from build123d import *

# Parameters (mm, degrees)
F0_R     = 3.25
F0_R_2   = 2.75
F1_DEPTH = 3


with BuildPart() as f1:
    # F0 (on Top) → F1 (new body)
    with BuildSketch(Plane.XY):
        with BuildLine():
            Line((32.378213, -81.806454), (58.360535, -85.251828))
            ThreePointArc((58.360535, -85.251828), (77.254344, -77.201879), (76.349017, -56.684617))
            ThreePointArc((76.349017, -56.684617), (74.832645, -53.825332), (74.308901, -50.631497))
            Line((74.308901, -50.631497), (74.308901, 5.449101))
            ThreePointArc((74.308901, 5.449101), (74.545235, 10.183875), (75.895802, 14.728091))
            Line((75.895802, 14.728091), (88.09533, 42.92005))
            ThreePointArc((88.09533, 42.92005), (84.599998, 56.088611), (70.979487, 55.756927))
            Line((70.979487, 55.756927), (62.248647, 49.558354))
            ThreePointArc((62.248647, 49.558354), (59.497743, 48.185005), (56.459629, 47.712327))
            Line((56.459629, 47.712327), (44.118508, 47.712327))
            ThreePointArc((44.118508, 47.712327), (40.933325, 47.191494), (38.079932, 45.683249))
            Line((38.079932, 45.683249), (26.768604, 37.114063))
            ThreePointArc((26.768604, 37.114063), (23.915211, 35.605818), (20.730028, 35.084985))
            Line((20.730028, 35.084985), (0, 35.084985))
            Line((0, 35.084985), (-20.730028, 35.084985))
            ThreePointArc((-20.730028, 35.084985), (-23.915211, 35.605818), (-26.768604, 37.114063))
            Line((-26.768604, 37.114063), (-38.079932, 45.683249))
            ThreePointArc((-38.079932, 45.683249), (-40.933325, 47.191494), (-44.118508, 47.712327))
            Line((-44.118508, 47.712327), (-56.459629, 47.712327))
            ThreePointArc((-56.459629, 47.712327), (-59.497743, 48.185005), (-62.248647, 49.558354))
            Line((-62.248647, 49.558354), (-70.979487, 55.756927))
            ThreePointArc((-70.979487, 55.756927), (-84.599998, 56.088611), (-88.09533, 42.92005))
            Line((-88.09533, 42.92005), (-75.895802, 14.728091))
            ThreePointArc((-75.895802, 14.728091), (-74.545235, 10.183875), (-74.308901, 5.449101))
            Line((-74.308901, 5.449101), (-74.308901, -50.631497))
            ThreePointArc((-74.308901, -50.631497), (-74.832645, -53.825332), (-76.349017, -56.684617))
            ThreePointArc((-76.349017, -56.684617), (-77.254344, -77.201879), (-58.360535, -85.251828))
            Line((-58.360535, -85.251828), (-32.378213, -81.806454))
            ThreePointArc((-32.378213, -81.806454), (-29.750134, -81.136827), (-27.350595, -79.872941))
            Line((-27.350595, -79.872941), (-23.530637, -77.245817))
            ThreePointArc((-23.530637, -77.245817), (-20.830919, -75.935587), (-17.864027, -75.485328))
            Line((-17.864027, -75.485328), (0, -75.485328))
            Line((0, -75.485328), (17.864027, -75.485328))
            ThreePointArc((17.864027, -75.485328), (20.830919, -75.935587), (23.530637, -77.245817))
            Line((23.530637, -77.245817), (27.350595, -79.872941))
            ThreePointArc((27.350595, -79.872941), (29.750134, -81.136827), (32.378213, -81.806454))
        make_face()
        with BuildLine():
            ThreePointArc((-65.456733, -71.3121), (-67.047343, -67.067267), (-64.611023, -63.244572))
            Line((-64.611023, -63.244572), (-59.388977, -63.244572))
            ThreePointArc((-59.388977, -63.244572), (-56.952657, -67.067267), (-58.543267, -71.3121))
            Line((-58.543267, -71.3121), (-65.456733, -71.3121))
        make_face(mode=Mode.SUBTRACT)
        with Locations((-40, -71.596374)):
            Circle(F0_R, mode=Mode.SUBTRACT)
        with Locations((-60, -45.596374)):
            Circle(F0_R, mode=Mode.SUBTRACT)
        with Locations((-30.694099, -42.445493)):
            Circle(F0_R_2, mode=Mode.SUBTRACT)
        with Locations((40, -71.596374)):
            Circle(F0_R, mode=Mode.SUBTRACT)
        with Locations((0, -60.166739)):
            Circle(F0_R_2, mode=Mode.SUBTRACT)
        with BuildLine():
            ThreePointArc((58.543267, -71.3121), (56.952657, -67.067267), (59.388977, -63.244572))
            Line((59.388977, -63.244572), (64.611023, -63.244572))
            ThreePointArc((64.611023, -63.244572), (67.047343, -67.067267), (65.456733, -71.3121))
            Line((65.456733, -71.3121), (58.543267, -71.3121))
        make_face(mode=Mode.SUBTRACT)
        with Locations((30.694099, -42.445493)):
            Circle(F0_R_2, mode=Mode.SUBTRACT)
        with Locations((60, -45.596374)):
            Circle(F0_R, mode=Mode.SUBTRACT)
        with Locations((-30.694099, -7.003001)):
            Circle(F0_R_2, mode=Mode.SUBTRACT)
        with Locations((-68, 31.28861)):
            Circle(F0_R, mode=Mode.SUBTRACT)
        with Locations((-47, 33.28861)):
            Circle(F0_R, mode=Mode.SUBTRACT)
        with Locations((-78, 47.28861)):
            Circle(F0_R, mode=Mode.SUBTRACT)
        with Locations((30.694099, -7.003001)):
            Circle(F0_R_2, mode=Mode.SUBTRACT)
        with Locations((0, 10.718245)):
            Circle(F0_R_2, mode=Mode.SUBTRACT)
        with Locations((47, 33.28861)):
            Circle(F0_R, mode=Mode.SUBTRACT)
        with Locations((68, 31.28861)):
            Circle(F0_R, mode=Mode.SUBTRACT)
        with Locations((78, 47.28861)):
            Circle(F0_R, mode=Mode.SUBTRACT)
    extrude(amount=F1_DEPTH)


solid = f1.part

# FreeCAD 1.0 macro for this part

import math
import FreeCAD as App
import Part
import Sketcher

doc = App.newDocument("Part")
body = doc.addObject("PartDesign::Body", "Body")

sketch1 = body.newObject("Sketcher::SketchObject", "Sketch")
sketch1.AttachmentSupport = (doc.getObject("XY_Plane"), [""])
sketch1.MapMode = "FlatFace"
sketch1.addGeometry(Part.LineSegment(App.Vector(32.378213, -81.806454, 0), App.Vector(58.360535, -85.251828, 0)), False)
sketch1.addGeometry(Part.ArcOfCircle(Part.Circle(App.Vector(61.999999, -67.596374, 0), App.Vector(0, 0, 1), 18.026668), math.radians(-101.647699), math.radians(37.251292)), False)
sketch1.addGeometry(Part.ArcOfCircle(Part.Circle(App.Vector(84.308899, -50.631499, 0), App.Vector(0, 0, 1), 9.999998), math.radians(179.99999), math.radians(217.251291)), False)
sketch1.addGeometry(Part.LineSegment(App.Vector(74.308901, -50.631497, 0), App.Vector(74.308901, 5.449101, 0)), False)
sketch1.addGeometry(Part.ArcOfCircle(Part.Circle(App.Vector(94.141935, 6.83243, 0), App.Vector(0, 0, 1), 19.881218), math.radians(156.600385), math.radians(183.989846)), False)
sketch1.addGeometry(Part.LineSegment(App.Vector(75.895802, 14.728091, 0), App.Vector(88.09533, 42.92005, 0)), False)
sketch1.addGeometry(Part.ArcOfCircle(Part.Circle(App.Vector(78, 47.288609, 0), App.Vector(0, 0, 1), 11), math.radians(-23.399618), math.radians(129.659845)), False)
sketch1.addGeometry(Part.LineSegment(App.Vector(70.979487, 55.756927, 0), App.Vector(62.248647, 49.558354, 0)), False)
sketch1.addGeometry(Part.ArcOfCircle(Part.Circle(App.Vector(56.459629, 57.712329, 0), App.Vector(0, 0, 1), 10.000002), math.radians(-90), math.radians(-54.626668)), False)
sketch1.addGeometry(Part.LineSegment(App.Vector(56.459629, 47.712327, 0), App.Vector(44.118508, 47.712327, 0)), False)
sketch1.addGeometry(Part.ArcOfCircle(Part.Circle(App.Vector(44.118508, 37.712326, 0), App.Vector(0, 0, 1), 10.000001), math.radians(90.000003), math.radians(127.14668)), False)
sketch1.addGeometry(Part.LineSegment(App.Vector(38.079932, 45.683249, 0), App.Vector(26.768604, 37.114063, 0)), False)
sketch1.addGeometry(Part.ArcOfCircle(Part.Circle(App.Vector(20.730027, 45.084986, 0), App.Vector(0, 0, 1), 10.000001), math.radians(-89.999997), math.radians(-52.85332)), False)
sketch1.addGeometry(Part.LineSegment(App.Vector(20.730028, 35.084985, 0), App.Vector(-20.730028, 35.084985, 0)), False)
sketch1.addGeometry(Part.ArcOfCircle(Part.Circle(App.Vector(-20.730027, 45.084986, 0), App.Vector(0, 0, 1), 10.000001), math.radians(-127.14668), math.radians(-90.000003)), False)
sketch1.addGeometry(Part.LineSegment(App.Vector(-26.768604, 37.114063, 0), App.Vector(-38.079932, 45.683249, 0)), False)
sketch1.addGeometry(Part.ArcOfCircle(Part.Circle(App.Vector(-44.118508, 37.712326, 0), App.Vector(0, 0, 1), 10.000001), math.radians(52.85332), math.radians(89.999997)), False)
sketch1.addGeometry(Part.LineSegment(App.Vector(-44.118508, 47.712327, 0), App.Vector(-56.459629, 47.712327, 0)), False)
sketch1.addGeometry(Part.ArcOfCircle(Part.Circle(App.Vector(-56.459629, 57.712329, 0), App.Vector(0, 0, 1), 10.000002), math.radians(-125.373332), math.radians(-90)), False)
sketch1.addGeometry(Part.LineSegment(App.Vector(-62.248647, 49.558354, 0), App.Vector(-70.979487, 55.756927, 0)), False)
sketch1.addGeometry(Part.ArcOfCircle(Part.Circle(App.Vector(-78, 47.288609, 0), App.Vector(0, 0, 1), 11), math.radians(50.340155), math.radians(203.399618)), False)
sketch1.addGeometry(Part.LineSegment(App.Vector(-88.09533, 42.92005, 0), App.Vector(-75.895802, 14.728091, 0)), False)
sketch1.addGeometry(Part.ArcOfCircle(Part.Circle(App.Vector(-94.141935, 6.83243, 0), App.Vector(0, 0, 1), 19.881218), math.radians(-3.989846), math.radians(23.399615)), False)
sketch1.addGeometry(Part.LineSegment(App.Vector(-74.308901, 5.449101, 0), App.Vector(-74.308901, -50.631497, 0)), False)
sketch1.addGeometry(Part.ArcOfCircle(Part.Circle(App.Vector(-84.308899, -50.631499, 0), App.Vector(0, 0, 1), 9.999998), math.radians(-37.251291), math.radians(0.00001)), False)
sketch1.addGeometry(Part.ArcOfCircle(Part.Circle(App.Vector(-61.999999, -67.596374, 0), App.Vector(0, 0, 1), 18.026668), math.radians(142.748708), math.radians(281.647699)), False)
sketch1.addGeometry(Part.LineSegment(App.Vector(-58.360535, -85.251828, 0), App.Vector(-32.378213, -81.806454, 0)), False)
sketch1.addGeometry(Part.ArcOfCircle(Part.Circle(App.Vector(-33.896799, -70.35446, 0), App.Vector(0, 0, 1), 11.552241), math.radians(-82.446389), math.radians(-55.482287)), False)
sketch1.addGeometry(Part.LineSegment(App.Vector(-27.350595, -79.872941, 0), App.Vector(-23.530637, -77.245817, 0)), False)
sketch1.addGeometry(Part.ArcOfCircle(Part.Circle(App.Vector(-17.864027, -85.485332, 0), App.Vector(0, 0, 1), 10.000004), math.radians(90.000003), math.radians(124.5177)), False)
sketch1.addGeometry(Part.LineSegment(App.Vector(-17.864027, -75.485328, 0), App.Vector(17.864027, -75.485328, 0)), False)
sketch1.addGeometry(Part.ArcOfCircle(Part.Circle(App.Vector(17.864027, -85.485332, 0), App.Vector(0, 0, 1), 10.000004), math.radians(55.4823), math.radians(89.999997)), False)
sketch1.addGeometry(Part.LineSegment(App.Vector(23.530637, -77.245817, 0), App.Vector(27.350595, -79.872941, 0)), False)
sketch1.addGeometry(Part.ArcOfCircle(Part.Circle(App.Vector(33.896799, -70.35446, 0), App.Vector(0, 0, 1), 11.552241), math.radians(-124.517713), math.radians(-97.553611)), False)
sketch1.addGeometry(Part.LineSegment(App.Vector(-58.543267, -71.3121, 0), App.Vector(-65.456733, -71.3121, 0)), False)
sketch1.addGeometry(Part.ArcOfCircle(Part.Circle(App.Vector(-62.000001, -67.596374, 0), App.Vector(0, 0, 1), 5.074999), math.radians(120.963185), math.radians(227.068023)), False)
sketch1.addGeometry(Part.LineSegment(App.Vector(-64.611023, -63.244572, 0), App.Vector(-59.388977, -63.244572, 0)), False)
sketch1.addGeometry(Part.ArcOfCircle(Part.Circle(App.Vector(-61.999999, -67.596374, 0), App.Vector(0, 0, 1), 5.074999), math.radians(-47.068023), math.radians(59.036815)), False)
sketch1.addGeometry(Part.Circle(App.Vector(-60, -45.596374, 0), App.Vector(0, 0, 1), 3.25), False)
sketch1.addGeometry(Part.Circle(App.Vector(-40, -71.596374, 0), App.Vector(0, 0, 1), 3.25), False)
sketch1.addGeometry(Part.Circle(App.Vector(-30.694099, -42.445493, 0), App.Vector(0, 0, 1), 2.75), False)
sketch1.addGeometry(Part.Circle(App.Vector(0, -60.166739, 0), App.Vector(0, 0, 1), 2.75), False)
sketch1.addGeometry(Part.Circle(App.Vector(40, -71.596374, 0), App.Vector(0, 0, 1), 3.25), False)
sketch1.addGeometry(Part.LineSegment(App.Vector(65.456733, -71.3121, 0), App.Vector(58.543267, -71.3121, 0)), False)
sketch1.addGeometry(Part.ArcOfCircle(Part.Circle(App.Vector(61.999999, -67.596374, 0), App.Vector(0, 0, 1), 5.074999), math.radians(120.963185), math.radians(227.068023)), False)
sketch1.addGeometry(Part.LineSegment(App.Vector(59.388977, -63.244572, 0), App.Vector(64.611023, -63.244572, 0)), False)
sketch1.addGeometry(Part.ArcOfCircle(Part.Circle(App.Vector(62.000001, -67.596374, 0), App.Vector(0, 0, 1), 5.074999), math.radians(-47.068023), math.radians(59.036815)), False)
sketch1.addGeometry(Part.Circle(App.Vector(60, -45.596374, 0), App.Vector(0, 0, 1), 3.25), False)
sketch1.addGeometry(Part.Circle(App.Vector(30.694099, -42.445493, 0), App.Vector(0, 0, 1), 2.75), False)
sketch1.addGeometry(Part.Circle(App.Vector(-30.694099, -7.003001, 0), App.Vector(0, 0, 1), 2.75), False)
sketch1.addGeometry(Part.Circle(App.Vector(-68, 31.28861, 0), App.Vector(0, 0, 1), 3.25), False)
sketch1.addGeometry(Part.Circle(App.Vector(-47, 33.28861, 0), App.Vector(0, 0, 1), 3.25), False)
sketch1.addGeometry(Part.Circle(App.Vector(-78, 47.28861, 0), App.Vector(0, 0, 1), 3.25), False)
sketch1.addGeometry(Part.Circle(App.Vector(30.694099, -7.003001, 0), App.Vector(0, 0, 1), 2.75), False)
sketch1.addGeometry(Part.Circle(App.Vector(0, 10.718245, 0), App.Vector(0, 0, 1), 2.75), False)
sketch1.addGeometry(Part.Circle(App.Vector(47, 33.28861, 0), App.Vector(0, 0, 1), 3.25), False)
sketch1.addGeometry(Part.Circle(App.Vector(68, 31.28861, 0), App.Vector(0, 0, 1), 3.25), False)
sketch1.addGeometry(Part.Circle(App.Vector(78, 47.28861, 0), App.Vector(0, 0, 1), 3.25), False)
sketch1.addConstraint(Sketcher.Constraint("Coincident", 0, 2, 1, 1))
sketch1.addConstraint(Sketcher.Constraint("Tangent", 1, 2, 2, 2))
sketch1.addConstraint(Sketcher.Constraint("Tangent", 2, 1, 3, 1))
sketch1.addConstraint(Sketcher.Constraint("Coincident", 3, 2, 4, 2))
sketch1.addConstraint(Sketcher.Constraint("Tangent", 4, 1, 5, 1))
sketch1.addConstraint(Sketcher.Constraint("Tangent", 5, 2, 6, 1))
sketch1.addConstraint(Sketcher.Constraint("Coincident", 6, 2, 7, 1))
sketch1.addConstraint(Sketcher.Constraint("Tangent", 7, 2, 8, 2))
sketch1.addConstraint(Sketcher.Constraint("Tangent", 8, 1, 9, 1))
sketch1.addConstraint(Sketcher.Constraint("Tangent", 9, 2, 10, 1))
sketch1.addConstraint(Sketcher.Constraint("Tangent", 10, 2, 11, 1))
sketch1.addConstraint(Sketcher.Constraint("Tangent", 11, 2, 12, 2))
sketch1.addConstraint(Sketcher.Constraint("Tangent", 12, 1, 13, 1))
sketch1.addConstraint(Sketcher.Constraint("Tangent", 13, 2, 14, 2))
sketch1.addConstraint(Sketcher.Constraint("Tangent", 14, 1, 15, 1))
sketch1.addConstraint(Sketcher.Constraint("Tangent", 15, 2, 16, 1))
sketch1.addConstraint(Sketcher.Constraint("Tangent", 16, 2, 17, 1))
sketch1.addConstraint(Sketcher.Constraint("Tangent", 17, 2, 18, 2))
sketch1.addConstraint(Sketcher.Constraint("Tangent", 18, 1, 19, 1))
sketch1.addConstraint(Sketcher.Constraint("Coincident", 19, 2, 20, 1))
sketch1.addConstraint(Sketcher.Constraint("Tangent", 20, 2, 21, 1))
sketch1.addConstraint(Sketcher.Constraint("Tangent", 21, 2, 22, 2))
sketch1.addConstraint(Sketcher.Constraint("Coincident", 22, 1, 23, 1))
sketch1.addConstraint(Sketcher.Constraint("Tangent", 23, 2, 24, 2))
sketch1.addConstraint(Sketcher.Constraint("Tangent", 24, 1, 25, 1))
sketch1.addConstraint(Sketcher.Constraint("Coincident", 25, 2, 26, 1))
sketch1.addConstraint(Sketcher.Constraint("Tangent", 26, 2, 27, 1))
sketch1.addConstraint(Sketcher.Constraint("Tangent", 27, 2, 28, 1))
sketch1.addConstraint(Sketcher.Constraint("Tangent", 28, 2, 29, 2))
sketch1.addConstraint(Sketcher.Constraint("Tangent", 29, 1, 30, 1))
sketch1.addConstraint(Sketcher.Constraint("Tangent", 30, 2, 31, 2))
sketch1.addConstraint(Sketcher.Constraint("Tangent", 31, 1, 32, 1))
sketch1.addConstraint(Sketcher.Constraint("Tangent", 32, 2, 33, 1))
sketch1.addConstraint(Sketcher.Constraint("Tangent", 33, 2, 0, 1))
sketch1.addConstraint(Sketcher.Constraint("Coincident", 34, 2, 35, 2))
sketch1.addConstraint(Sketcher.Constraint("Coincident", 35, 1, 36, 1))
sketch1.addConstraint(Sketcher.Constraint("Coincident", 36, 2, 37, 2))
sketch1.addConstraint(Sketcher.Constraint("Coincident", 37, 1, 34, 1))
sketch1.addConstraint(Sketcher.Constraint("Coincident", 43, 2, 44, 2))
sketch1.addConstraint(Sketcher.Constraint("Coincident", 44, 1, 45, 1))
sketch1.addConstraint(Sketcher.Constraint("Coincident", 45, 2, 46, 2))
sketch1.addConstraint(Sketcher.Constraint("Coincident", 46, 1, 43, 1))
sketch1.addConstraint(Sketcher.Constraint("Vertical", 3))
sketch1.addConstraint(Sketcher.Constraint("Horizontal", 9))
sketch1.addConstraint(Sketcher.Constraint("Horizontal", 13))
sketch1.addConstraint(Sketcher.Constraint("Horizontal", 17))
sketch1.addConstraint(Sketcher.Constraint("Vertical", 23))
sketch1.addConstraint(Sketcher.Constraint("Horizontal", 30))
sketch1.addConstraint(Sketcher.Constraint("Horizontal", 34))
sketch1.addConstraint(Sketcher.Constraint("Horizontal", 36))
sketch1.addConstraint(Sketcher.Constraint("Horizontal", 43))
sketch1.addConstraint(Sketcher.Constraint("Horizontal", 45))
sketch1.addConstraint(Sketcher.Constraint("Coincident", 35, 3, 25, 3))
sketch1.addConstraint(Sketcher.Constraint("Coincident", 37, 3, 25, 3))
sketch1.addConstraint(Sketcher.Constraint("Coincident", 44, 3, 1, 3))
sketch1.addConstraint(Sketcher.Constraint("Coincident", 46, 3, 1, 3))
sketch1.addConstraint(Sketcher.Constraint("Coincident", 52, 3, 20, 3))
sketch1.addConstraint(Sketcher.Constraint("Coincident", 57, 3, 6, 3))
sketch1.addConstraint(Sketcher.Constraint("Equal", 8, 10))
sketch1.addConstraint(Sketcher.Constraint("Equal", 10, 12))
sketch1.addConstraint(Sketcher.Constraint("Equal", 12, 14))
sketch1.addConstraint(Sketcher.Constraint("Equal", 14, 16))
sketch1.addConstraint(Sketcher.Constraint("Equal", 16, 18))
sketch1.addConstraint(Sketcher.Constraint("Equal", 6, 20))
sketch1.addConstraint(Sketcher.Constraint("Equal", 4, 22))
sketch1.addConstraint(Sketcher.Constraint("Equal", 2, 24))
sketch1.addConstraint(Sketcher.Constraint("Equal", 1, 25))
sketch1.addConstraint(Sketcher.Constraint("Equal", 29, 31))
sketch1.addConstraint(Sketcher.Constraint("Equal", 27, 33))
sketch1.addConstraint(Sketcher.Constraint("Equal", 35, 37))
sketch1.addConstraint(Sketcher.Constraint("Equal", 38, 39))
sketch1.addConstraint(Sketcher.Constraint("Equal", 40, 41))
sketch1.addConstraint(Sketcher.Constraint("Equal", 39, 42))
sketch1.addConstraint(Sketcher.Constraint("Equal", 37, 44))
sketch1.addConstraint(Sketcher.Constraint("Equal", 44, 46))
sketch1.addConstraint(Sketcher.Constraint("Equal", 42, 47))
sketch1.addConstraint(Sketcher.Constraint("Equal", 41, 48))
sketch1.addConstraint(Sketcher.Constraint("Equal", 48, 49))
sketch1.addConstraint(Sketcher.Constraint("Equal", 47, 50))
sketch1.addConstraint(Sketcher.Constraint("Equal", 50, 51))
sketch1.addConstraint(Sketcher.Constraint("Equal", 51, 52))
sketch1.addConstraint(Sketcher.Constraint("Equal", 49, 53))
sketch1.addConstraint(Sketcher.Constraint("Equal", 53, 54))
sketch1.addConstraint(Sketcher.Constraint("Equal", 52, 55))
sketch1.addConstraint(Sketcher.Constraint("Equal", 55, 56))
sketch1.addConstraint(Sketcher.Constraint("Equal", 56, 57))
sketch1.addConstraint(Sketcher.Constraint("Symmetric", 10, 3, 16, 3, -2))
sketch1.addConstraint(Sketcher.Constraint("Symmetric", 6, 3, 20, 3, -2))
sketch1.addConstraint(Sketcher.Constraint("Symmetric", 4, 3, 22, 3, -2))
sketch1.addConstraint(Sketcher.Constraint("Symmetric", 2, 3, 24, 3, -2))
sketch1.addConstraint(Sketcher.Constraint("Symmetric", 27, 3, 33, 3, -2))
sketch1.addConstraint(Sketcher.Constraint("Symmetric", 39, 3, 42, 3, -2))
sketch1.addConstraint(Sketcher.Constraint("Symmetric", 38, 3, 47, 3, -2))
sketch1.addConstraint(Sketcher.Constraint("Symmetric", 40, 3, 48, 3, -2))
sketch1.addConstraint(Sketcher.Constraint("Symmetric", 49, 3, 53, 3, -2))
sketch1.addConstraint(Sketcher.Constraint("Symmetric", 51, 3, 55, 3, -2))
sketch1.addConstraint(Sketcher.Constraint("Symmetric", 50, 3, 56, 3, -2))
sketch1.addConstraint(Sketcher.Constraint("Symmetric", 7, 2, 18, 1, -2))
sketch1.addConstraint(Sketcher.Constraint("Symmetric", 0, 2, 25, 2, -2))
sketch1.addConstraint(Sketcher.Constraint("PointOnObject", 41, 3, -2))
sketch1.addConstraint(Sketcher.Constraint("PointOnObject", 54, 3, -2))
sketch1.addConstraint(Sketcher.Constraint("Horizontal", 11, 2, 14, 1))
sketch1.addConstraint(Sketcher.Constraint("Horizontal", 28, 2, 31, 1))
sketch1.addConstraint(Sketcher.Constraint("Horizontal", 37, 1, 43, 2))
sketch1.addConstraint(Sketcher.Constraint("Horizontal", 36, 2, 44, 1))
sketch1.addConstraint(Sketcher.Constraint("Vertical", 40, 3, 49, 3))
sketch1.addConstraint(Sketcher.Constraint("Radius", 2, 9.999998))
sketch1.addConstraint(Sketcher.Constraint("Radius", 6, 11.0))
sketch1.addConstraint(Sketcher.Constraint("Radius", 8, 10.000002))
sketch1.addConstraint(Sketcher.Constraint("Diameter", 38, 6.5))
sketch1.addConstraint(Sketcher.Constraint("Diameter", 40, 5.5))
sketch1.addConstraint(Sketcher.Constraint("DistanceX", -1, 1, 1, 3, 61.999999))
sketch1.addConstraint(Sketcher.Constraint("DistanceX", -1, 1, 6, 3, 78.0))
sketch1.addConstraint(Sketcher.Constraint("DistanceX", 38, 3, -1, 1, 60.0))
sketch1.addConstraint(Sketcher.Constraint("DistanceX", 39, 3, -1, 1, 40.0))
sketch1.addConstraint(Sketcher.Constraint("DistanceX", 50, 3, -1, 1, 68.0))
sketch1.addConstraint(Sketcher.Constraint("DistanceX", 51, 3, -1, 1, 47.0))
sketch1.addConstraint(Sketcher.Constraint("Radius", 35, 5.074999))
sketch1.addConstraint(Sketcher.Constraint("Radius", 4, 19.881218))
sketch1.addConstraint(Sketcher.Constraint("Radius", 27, 11.552241))
sketch1.addConstraint(Sketcher.Constraint("DistanceY", 3, 1, 3, 2, 56.080598))
sketch1.addConstraint(Sketcher.Constraint("DistanceY", 49, 3, -1, 1, 7.003001))
sketch1.addConstraint(Sketcher.Constraint("Radius", 1, 18.026668))
sketch1.addConstraint(Sketcher.Constraint("Radius", 29, 10.000004))
sketch1.addConstraint(Sketcher.Constraint("DistanceX", 9, 2, 9, 1, 12.341121))
sketch1.addConstraint(Sketcher.Constraint("DistanceX", -1, 1, 2, 3, 84.308899))
sketch1.addConstraint(Sketcher.Constraint("DistanceY", 2, 3, -1, 1, 50.631499))
sketch1.addConstraint(Sketcher.Constraint("DistanceX", 27, 3, -1, 1, 33.896799))
sketch1.addConstraint(Sketcher.Constraint("DistanceX", 40, 3, -1, 1, 30.694099))
sketch1.addConstraint(Sketcher.Constraint("DistanceX", -1, 1, 4, 1, 75.895802))
sketch1.addConstraint(Sketcher.Constraint("DistanceY", 34, 2, -1, 1, 71.3121))
sketch1.addConstraint(Sketcher.Constraint("Distance", 7, 10.707468))
sketch1.addConstraint(Sketcher.Constraint("Distance", 11, 14.19074))
sketch1.addConstraint(Sketcher.Constraint("DistanceX", 13, 2, 13, 1, 41.460056))
sketch1.addConstraint(Sketcher.Constraint("DistanceX", 30, 1, 30, 2, 35.728054))
sketch1.addConstraint(Sketcher.Constraint("DistanceX", 36, 1, 36, 2, 5.222046))
sketch1.addConstraint(Sketcher.Constraint("DistanceY", -1, 1, 4, 3, 6.83243))
sketch1.addConstraint(Sketcher.Constraint("DistanceX", -1, 1, 8, 3, 56.459629))
sketch1.addConstraint(Sketcher.Constraint("DistanceY", -1, 1, 8, 3, 57.712329))
sketch1.addConstraint(Sketcher.Constraint("DistanceY", 27, 3, -1, 1, 70.35446))
sketch1.addConstraint(Sketcher.Constraint("DistanceY", 41, 3, -1, 1, 60.166739))
sketch1.addConstraint(Sketcher.Constraint("DistanceY", -1, 1, 50, 3, 31.28861))
sketch1.addConstraint(Sketcher.Constraint("DistanceY", -1, 1, 51, 3, 33.28861))
sketch1.addConstraint(Sketcher.Constraint("DistanceY", 0, 2, -1, 1, 85.251828))
sketch1.addConstraint(Sketcher.Constraint("DistanceY", 27, 2, -1, 1, 79.872941))
sketch1.addConstraint(Sketcher.Constraint("DistanceY", 38, 3, -1, 1, 45.596374))
sketch1.addConstraint(Sketcher.Constraint("DistanceY", 39, 3, -1, 1, 71.596374))
sketch1.addConstraint(Sketcher.Constraint("DistanceY", 40, 3, -1, 1, 42.445493))
sketch1.addConstraint(Sketcher.Constraint("DistanceY", -1, 1, 54, 3, 10.718245))
pad1 = body.newObject("PartDesign::Pad", "Pad")
pad1.Profile = sketch1
pad1.Length = 3

doc.recompute()
